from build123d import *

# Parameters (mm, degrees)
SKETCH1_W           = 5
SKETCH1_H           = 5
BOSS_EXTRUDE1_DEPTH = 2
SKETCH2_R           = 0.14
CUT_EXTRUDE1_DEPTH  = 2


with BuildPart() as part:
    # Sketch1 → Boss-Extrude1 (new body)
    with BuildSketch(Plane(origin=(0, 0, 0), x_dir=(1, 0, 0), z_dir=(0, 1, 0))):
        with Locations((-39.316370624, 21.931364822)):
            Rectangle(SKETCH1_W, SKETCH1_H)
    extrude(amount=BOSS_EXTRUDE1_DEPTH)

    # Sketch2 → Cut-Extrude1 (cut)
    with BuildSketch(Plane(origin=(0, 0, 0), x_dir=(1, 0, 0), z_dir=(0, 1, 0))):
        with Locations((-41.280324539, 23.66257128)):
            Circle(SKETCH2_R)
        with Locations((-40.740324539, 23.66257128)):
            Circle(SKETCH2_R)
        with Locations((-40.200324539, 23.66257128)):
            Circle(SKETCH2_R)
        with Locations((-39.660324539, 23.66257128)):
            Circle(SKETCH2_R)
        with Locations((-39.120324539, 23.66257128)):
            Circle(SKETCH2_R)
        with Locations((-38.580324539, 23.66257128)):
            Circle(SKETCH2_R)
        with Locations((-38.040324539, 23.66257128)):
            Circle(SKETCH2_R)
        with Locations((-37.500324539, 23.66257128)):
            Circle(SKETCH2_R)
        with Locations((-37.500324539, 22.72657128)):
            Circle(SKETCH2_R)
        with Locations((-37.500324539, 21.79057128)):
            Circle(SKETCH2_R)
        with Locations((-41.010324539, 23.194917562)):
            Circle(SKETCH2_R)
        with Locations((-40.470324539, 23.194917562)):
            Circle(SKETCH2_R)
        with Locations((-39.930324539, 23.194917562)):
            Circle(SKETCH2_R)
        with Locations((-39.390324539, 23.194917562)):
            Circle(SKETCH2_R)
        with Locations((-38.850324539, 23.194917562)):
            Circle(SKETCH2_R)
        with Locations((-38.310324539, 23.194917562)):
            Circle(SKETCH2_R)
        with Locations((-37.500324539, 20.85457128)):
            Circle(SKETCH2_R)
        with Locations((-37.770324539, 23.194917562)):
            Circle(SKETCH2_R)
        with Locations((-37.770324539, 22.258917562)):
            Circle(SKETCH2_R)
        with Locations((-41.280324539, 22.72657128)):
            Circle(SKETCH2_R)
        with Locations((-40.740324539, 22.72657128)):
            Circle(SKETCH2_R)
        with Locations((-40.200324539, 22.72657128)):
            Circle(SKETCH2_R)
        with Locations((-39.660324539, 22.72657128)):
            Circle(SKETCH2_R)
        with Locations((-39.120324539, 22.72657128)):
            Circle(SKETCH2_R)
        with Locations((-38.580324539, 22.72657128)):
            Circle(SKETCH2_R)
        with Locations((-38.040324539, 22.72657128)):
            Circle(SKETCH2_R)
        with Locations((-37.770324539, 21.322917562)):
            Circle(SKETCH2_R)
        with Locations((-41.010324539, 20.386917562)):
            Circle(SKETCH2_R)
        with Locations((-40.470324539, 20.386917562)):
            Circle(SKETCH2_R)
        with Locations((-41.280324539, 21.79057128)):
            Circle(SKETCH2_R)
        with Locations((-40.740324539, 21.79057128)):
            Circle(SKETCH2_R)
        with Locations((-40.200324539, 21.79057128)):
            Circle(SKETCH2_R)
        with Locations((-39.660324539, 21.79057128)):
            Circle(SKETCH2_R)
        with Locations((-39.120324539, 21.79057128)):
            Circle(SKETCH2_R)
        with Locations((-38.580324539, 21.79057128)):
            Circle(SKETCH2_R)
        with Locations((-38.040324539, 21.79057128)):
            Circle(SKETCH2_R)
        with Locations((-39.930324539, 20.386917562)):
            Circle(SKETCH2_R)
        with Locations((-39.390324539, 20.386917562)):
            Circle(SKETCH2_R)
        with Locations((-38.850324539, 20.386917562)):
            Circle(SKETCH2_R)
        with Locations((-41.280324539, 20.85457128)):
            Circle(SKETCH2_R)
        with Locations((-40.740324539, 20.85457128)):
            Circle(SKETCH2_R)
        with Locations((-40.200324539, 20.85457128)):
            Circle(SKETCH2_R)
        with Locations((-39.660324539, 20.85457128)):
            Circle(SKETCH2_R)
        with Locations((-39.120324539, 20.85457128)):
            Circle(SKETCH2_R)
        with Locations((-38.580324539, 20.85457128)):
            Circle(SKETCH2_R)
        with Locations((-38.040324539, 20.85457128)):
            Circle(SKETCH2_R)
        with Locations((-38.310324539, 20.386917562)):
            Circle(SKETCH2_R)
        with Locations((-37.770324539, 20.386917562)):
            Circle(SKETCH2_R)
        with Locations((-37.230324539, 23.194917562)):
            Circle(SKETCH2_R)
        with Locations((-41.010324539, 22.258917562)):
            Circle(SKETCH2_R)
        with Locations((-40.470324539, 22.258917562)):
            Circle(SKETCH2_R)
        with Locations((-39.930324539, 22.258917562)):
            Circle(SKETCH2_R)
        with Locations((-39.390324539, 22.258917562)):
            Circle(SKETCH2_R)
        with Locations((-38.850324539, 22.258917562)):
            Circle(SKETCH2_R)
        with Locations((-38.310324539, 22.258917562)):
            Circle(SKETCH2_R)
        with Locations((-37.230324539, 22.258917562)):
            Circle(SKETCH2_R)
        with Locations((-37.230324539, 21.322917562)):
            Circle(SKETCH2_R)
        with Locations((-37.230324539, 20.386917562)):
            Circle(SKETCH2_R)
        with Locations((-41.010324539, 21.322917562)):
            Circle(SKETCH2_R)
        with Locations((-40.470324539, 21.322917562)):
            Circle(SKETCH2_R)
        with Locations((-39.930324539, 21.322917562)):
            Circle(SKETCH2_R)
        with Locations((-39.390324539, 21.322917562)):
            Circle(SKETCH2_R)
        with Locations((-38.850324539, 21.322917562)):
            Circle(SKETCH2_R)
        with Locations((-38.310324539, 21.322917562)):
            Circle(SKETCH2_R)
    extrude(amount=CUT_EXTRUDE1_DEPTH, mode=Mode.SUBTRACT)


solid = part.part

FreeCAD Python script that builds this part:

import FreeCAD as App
import Part
import Sketcher

V = App.Vector


def add_polygon(sketch, points):
    """Adds a closed chain of lines whose ends are joined by coincident constraints."""
    first, n = sketch.GeometryCount, len(points)
    for a, b in zip(points, points[1:] + points[:1]):
        sketch.addGeometry(Part.LineSegment(App.Vector(*a, 0), App.Vector(*b, 0)), False)
    for i in range(n):
        sketch.addConstraint(Sketcher.Constraint("Coincident", first + i, 2, first + (i + 1) % n, 1))

doc = App.newDocument("Part")
params = doc.addObject("Spreadsheet::Sheet", "Params")
for row, (alias, value) in enumerate([
    ("sketch1_width", "5 mm"),
    ("pad1_length", "2 mm"),
    ("sketch2_diameter", "0.28 mm"),
    ("pocket1_length", "2 mm"),
], start=1):
    params.set(f"A{row}", alias)
    params.set(f"B{row}", "=" + value)
    params.setAlias(f"B{row}", alias)

body = doc.addObject("PartDesign::Body", "Body")

# Sketch on XZ plane
sketch1 = body.newObject("Sketcher::SketchObject", "Sketch")
sketch1.AttachmentSupport = (doc.getObject("XZ_Plane"), [""])
sketch1.MapMode = "FlatFace"
add_polygon(sketch1, [(-42, -24), (-42, -19), (-37, -19), (-37, -24)])  # lines 0-3
sketch1.addConstraint(Sketcher.Constraint("Vertical", 0))
sketch1.addConstraint(Sketcher.Constraint("Horizontal", 1))
sketch1.addConstraint(Sketcher.Constraint("Vertical", 2))
sketch1.addConstraint(Sketcher.Constraint("Horizontal", 3))
sketch1.addConstraint(Sketcher.Constraint("Equal", 3, 0))
sketch1.addConstraint(Sketcher.Constraint("DistanceX", 1, 1, 1, 2, 5.0))
sketch1.addConstraint(Sketcher.Constraint("DistanceX", 0, 2, -1, 1, 41.816371))
sketch1.addConstraint(Sketcher.Constraint("DistanceY", 0, 2, -1, 1, 19.431365))
sketch1.setExpression("Constraints[9]", "Params.sketch1_width")
pad1 = body.newObject("PartDesign::Pad", "Pad")
pad1.Profile = sketch1
pad1.setExpression("Length", "Params.pad1_length")
pad1.Reversed = True

# Sketch on XZ plane
sketch2 = body.newObject("Sketcher::SketchObject", "Sketch001")
sketch2.AttachmentSupport = (doc.getObject("XZ_Plane"), [""])
sketch2.MapMode = "FlatFace"
sketch2.addGeometry(Part.Circle(V(-41.28, -23.66, 0), V(0, 0, 1), 0.14), False)
sketch2.addGeometry(Part.Circle(V(-40.74, -23.66, 0), V(0, 0, 1), 0.14), False)
sketch2.addGeometry(Part.Circle(V(-40.2, -23.66, 0), V(0, 0, 1), 0.14), False)
sketch2.addGeometry(Part.Circle(V(-39.66, -23.66, 0), V(0, 0, 1), 0.14), False)
sketch2.addGeometry(Part.Circle(V(-39.12, -23.66, 0), V(0, 0, 1), 0.14), False)
sketch2.addGeometry(Part.Circle(V(-38.58, -23.66, 0), V(0, 0, 1), 0.14), False)
sketch2.addGeometry(Part.Circle(V(-38.04, -23.66, 0), V(0, 0, 1), 0.14), False)
sketch2.addGeometry(Part.Circle(V(-37.5, -23.66, 0), V(0, 0, 1), 0.14), False)
sketch2.addGeometry(Part.Circle(V(-37.5, -22.73, 0), V(0, 0, 1), 0.14), False)
sketch2.addGeometry(Part.Circle(V(-37.5, -21.79, 0), V(0, 0, 1), 0.14), False)
sketch2.addGeometry(Part.Circle(V(-41.01, -23.19, 0), V(0, 0, 1), 0.14), False)
sketch2.addGeometry(Part.Circle(V(-40.47, -23.19, 0), V(0, 0, 1), 0.14), False)
sketch2.addGeometry(Part.Circle(V(-39.93, -23.19, 0), V(0, 0, 1), 0.14), False)
sketch2.addGeometry(Part.Circle(V(-39.39, -23.19, 0), V(0, 0, 1), 0.14), False)
sketch2.addGeometry(Part.Circle(V(-38.85, -23.19, 0), V(0, 0, 1), 0.14), False)
sketch2.addGeometry(Part.Circle(V(-38.31, -23.19, 0), V(0, 0, 1), 0.14), False)
sketch2.addGeometry(Part.Circle(V(-37.5, -20.85, 0), V(0, 0, 1), 0.14), False)
sketch2.addGeometry(Part.Circle(V(-37.77, -23.19, 0), V(0, 0, 1), 0.14), False)
sketch2.addGeometry(Part.Circle(V(-37.77, -22.26, 0), V(0, 0, 1), 0.14), False)
sketch2.addGeometry(Part.Circle(V(-41.28, -22.73, 0), V(0, 0, 1), 0.14), False)
sketch2.addGeometry(Part.Circle(V(-40.74, -22.73, 0), V(0, 0, 1), 0.14), False)
sketch2.addGeometry(Part.Circle(V(-40.2, -22.73, 0), V(0, 0, 1), 0.14), False)
sketch2.addGeometry(Part.Circle(V(-39.66, -22.73, 0), V(0, 0, 1), 0.14), False)
sketch2.addGeometry(Part.Circle(V(-39.12, -22.73, 0), V(0, 0, 1), 0.14), False)
sketch2.addGeometry(Part.Circle(V(-38.58, -22.73, 0), V(0, 0, 1), 0.14), False)
sketch2.addGeometry(Part.Circle(V(-38.04, -22.73, 0), V(0, 0, 1), 0.14), False)
sketch2.addGeometry(Part.Circle(V(-37.77, -21.32, 0), V(0, 0, 1), 0.14), False)
sketch2.addGeometry(Part.Circle(V(-41.01, -20.39, 0), V(0, 0, 1), 0.14), False)
sketch2.addGeometry(Part.Circle(V(-40.47, -20.39, 0), V(0, 0, 1), 0.14), False)
sketch2.addGeometry(Part.Circle(V(-41.28, -21.79, 0), V(0, 0, 1), 0.14), False)
sketch2.addGeometry(Part.Circle(V(-40.74, -21.79, 0), V(0, 0, 1), 0.14), False)
sketch2.addGeometry(Part.Circle(V(-40.2, -21.79, 0), V(0, 0, 1), 0.14), False)
sketch2.addGeometry(Part.Circle(V(-39.66, -21.79, 0), V(0, 0, 1), 0.14), False)
sketch2.addGeometry(Part.Circle(V(-39.12, -21.79, 0), V(0, 0, 1), 0.14), False)
sketch2.addGeometry(Part.Circle(V(-38.58, -21.79, 0), V(0, 0, 1), 0.14), False)
sketch2.addGeometry(Part.Circle(V(-38.04, -21.79, 0), V(0, 0, 1), 0.14), False)
sketch2.addGeometry(Part.Circle(V(-39.93, -20.39, 0), V(0, 0, 1), 0.14), False)
sketch2.addGeometry(Part.Circle(V(-39.39, -20.39, 0), V(0, 0, 1), 0.14), False)
sketch2.addGeometry(Part.Circle(V(-38.85, -20.39, 0), V(0, 0, 1), 0.14), False)
sketch2.addGeometry(Part.Circle(V(-41.28, -20.85, 0), V(0, 0, 1), 0.14), False)
sketch2.addGeometry(Part.Circle(V(-40.74, -20.85, 0), V(0, 0, 1), 0.14), False)
sketch2.addGeometry(Part.Circle(V(-40.2, -20.85, 0), V(0, 0, 1), 0.14), False)
sketch2.addGeometry(Part.Circle(V(-39.66, -20.85, 0), V(0, 0, 1), 0.14), False)
sketch2.addGeometry(Part.Circle(V(-39.12, -20.85, 0), V(0, 0, 1), 0.14), False)
sketch2.addGeometry(Part.Circle(V(-38.58, -20.85, 0), V(0, 0, 1), 0.14), False)
sketch2.addGeometry(Part.Circle(V(-38.04, -20.85, 0), V(0, 0, 1), 0.14), False)
sketch2.addGeometry(Part.Circle(V(-38.31, -20.39, 0), V(0, 0, 1), 0.14), False)
sketch2.addGeometry(Part.Circle(V(-37.77, -20.39, 0), V(0, 0, 1), 0.14), False)
sketch2.addGeometry(Part.Circle(V(-37.23, -23.19, 0), V(0, 0, 1), 0.14), False)
sketch2.addGeometry(Part.Circle(V(-41.01, -22.26, 0), V(0, 0, 1), 0.14), False)
sketch2.addGeometry(Part.Circle(V(-40.47, -22.26, 0), V(0, 0, 1), 0.14), False)
sketch2.addGeometry(Part.Circle(V(-39.93, -22.26, 0), V(0, 0, 1), 0.14), False)
sketch2.addGeometry(Part.Circle(V(-39.39, -22.26, 0), V(0, 0, 1), 0.14), False)
sketch2.addGeometry(Part.Circle(V(-38.85, -22.26, 0), V(0, 0, 1), 0.14), False)
sketch2.addGeometry(Part.Circle(V(-38.31, -22.26, 0), V(0, 0, 1), 0.14), False)
sketch2.addGeometry(Part.Circle(V(-37.23, -22.26, 0), V(0, 0, 1), 0.14), False)
sketch2.addGeometry(Part.Circle(V(-37.23, -21.32, 0), V(0, 0, 1), 0.14), False)
sketch2.addGeometry(Part.Circle(V(-37.23, -20.39, 0), V(0, 0, 1), 0.14), False)
sketch2.addGeometry(Part.Circle(V(-41.01, -21.32, 0), V(0, 0, 1), 0.14), False)
sketch2.addGeometry(Part.Circle(V(-40.47, -21.32, 0), V(0, 0, 1), 0.14), False)
sketch2.addGeometry(Part.Circle(V(-39.93, -21.32, 0), V(0, 0, 1), 0.14), False)
sketch2.addGeometry(Part.Circle(V(-39.39, -21.32, 0), V(0, 0, 1), 0.14), False)
sketch2.addGeometry(Part.Circle(V(-38.85, -21.32, 0), V(0, 0, 1), 0.14), False)
sketch2.addGeometry(Part.Circle(V(-38.31, -21.32, 0), V(0, 0, 1), 0.14), False)
sketch2.addConstraint(Sketcher.Constraint("Equal", 0, 1))
sketch2.addConstraint(Sketcher.Constraint("Equal", 1, 2))
sketch2.addConstraint(Sketcher.Constraint("Equal", 2, 3))
sketch2.addConstraint(Sketcher.Constraint("Equal", 3, 4))
sketch2.addConstraint(Sketcher.Constraint("Equal", 4, 5))
sketch2.addConstraint(Sketcher.Constraint("Equal", 5, 6))
sketch2.addConstraint(Sketcher.Constraint("Equal", 6, 7))
sketch2.addConstraint(Sketcher.Constraint("Equal", 7, 8))
sketch2.addConstraint(Sketcher.Constraint("Equal", 8, 9))
sketch2.addConstraint(Sketcher.Constraint("Equal", 9, 10))
sketch2.addConstraint(Sketcher.Constraint("Equal", 10, 11))
sketch2.addConstraint(Sketcher.Constraint("Equal", 11, 12))
sketch2.addConstraint(Sketcher.Constraint("Equal", 12, 13))
sketch2.addConstraint(Sketcher.Constraint("Equal", 13, 14))
sketch2.addConstraint(Sketcher.Constraint("Equal", 14, 15))
sketch2.addConstraint(Sketcher.Constraint("Equal", 15, 16))
sketch2.addConstraint(Sketcher.Constraint("Equal", 16, 17))
sketch2.addConstraint(Sketcher.Constraint("Equal", 17, 18))
sketch2.addConstraint(Sketcher.Constraint("Equal", 18, 19))
sketch2.addConstraint(Sketcher.Constraint("Equal", 19, 20))
sketch2.addConstraint(Sketcher.Constraint("Equal", 20, 21))
sketch2.addConstraint(Sketcher.Constraint("Equal", 21, 22))
sketch2.addConstraint(Sketcher.Constraint("Equal", 22, 23))
sketch2.addConstraint(Sketcher.Constraint("Equal", 23, 24))
sketch2.addConstraint(Sketcher.Constraint("Equal", 24, 25))
sketch2.addConstraint(Sketcher.Constraint("Equal", 25, 26))
sketch2.addConstraint(Sketcher.Constraint("Equal", 26, 27))
sketch2.addConstraint(Sketcher.Constraint("Equal", 27, 28))
sketch2.addConstraint(Sketcher.Constraint("Equal", 28, 29))
sketch2.addConstraint(Sketcher.Constraint("Equal", 29, 30))
sketch2.addConstraint(Sketcher.Constraint("Equal", 30, 31))
sketch2.addConstraint(Sketcher.Constraint("Equal", 31, 32))
sketch2.addConstraint(Sketcher.Constraint("Equal", 32, 33))
sketch2.addConstraint(Sketcher.Constraint("Equal", 33, 34))
sketch2.addConstraint(Sketcher.Constraint("Equal", 34, 35))
sketch2.addConstraint(Sketcher.Constraint("Equal", 35, 36))
sketch2.addConstraint(Sketcher.Constraint("Equal", 36, 37))
sketch2.addConstraint(Sketcher.Constraint("Equal", 37, 38))
sketch2.addConstraint(Sketcher.Constraint("Equal", 38, 39))
sketch2.addConstraint(Sketcher.Constraint("Equal", 39, 40))
sketch2.addConstraint(Sketcher.Constraint("Equal", 40, 41))
sketch2.addConstraint(Sketcher.Constraint("Equal", 41, 42))
sketch2.addConstraint(Sketcher.Constraint("Equal", 42, 43))
sketch2.addConstraint(Sketcher.Constraint("Equal", 43, 44))
sketch2.addConstraint(Sketcher.Constraint("Equal", 44, 45))
sketch2.addConstraint(Sketcher.Constraint("Equal", 45, 46))
sketch2.addConstraint(Sketcher.Constraint("Equal", 46, 47))
sketch2.addConstraint(Sketcher.Constraint("Equal", 47, 48))
sketch2.addConstraint(Sketcher.Constraint("Equal", 48, 49))
sketch2.addConstraint(Sketcher.Constraint("Equal", 49, 50))
sketch2.addConstraint(Sketcher.Constraint("Equal", 50, 51))
sketch2.addConstraint(Sketcher.Constraint("Equal", 51, 52))
sketch2.addConstraint(Sketcher.Constraint("Equal", 52, 53))
sketch2.addConstraint(Sketcher.Constraint("Equal", 53, 54))
sketch2.addConstraint(Sketcher.Constraint("Equal", 54, 55))
sketch2.addConstraint(Sketcher.Constraint("Equal", 55, 56))
sketch2.addConstraint(Sketcher.Constraint("Equal", 56, 57))
sketch2.addConstraint(Sketcher.Constraint("Equal", 57, 58))
sketch2.addConstraint(Sketcher.Constraint("Equal", 58, 59))
sketch2.addConstraint(Sketcher.Constraint("Equal", 59, 60))
sketch2.addConstraint(Sketcher.Constraint("Equal", 60, 61))
sketch2.addConstraint(Sketcher.Constraint("Equal", 61, 62))
sketch2.addConstraint(Sketcher.Constraint("Equal", 62, 63))
sketch2.addConstraint(Sketcher.Constraint("Horizontal", 0, 3, 1, 3))
sketch2.addConstraint(Sketcher.Constraint("Horizontal", 1, 3, 2, 3))
sketch2.addConstraint(Sketcher.Constraint("Horizontal", 2, 3, 3, 3))
sketch2.addConstraint(Sketcher.Constraint("Horizontal", 3, 3, 4, 3))
sketch2.addConstraint(Sketcher.Constraint("Horizontal", 4, 3, 5, 3))
sketch2.addConstraint(Sketcher.Constraint("Horizontal", 5, 3, 6, 3))
sketch2.addConstraint(Sketcher.Constraint("Horizontal", 6, 3, 7, 3))
sketch2.addConstraint(Sketcher.Constraint("Horizontal", 10, 3, 11, 3))
sketch2.addConstraint(Sketcher.Constraint("Horizontal", 11, 3, 12, 3))
sketch2.addConstraint(Sketcher.Constraint("Horizontal", 12, 3, 13, 3))
sketch2.addConstraint(Sketcher.Constraint("Horizontal", 13, 3, 14, 3))
sketch2.addConstraint(Sketcher.Constraint("Horizontal", 14, 3, 15, 3))
sketch2.addConstraint(Sketcher.Constraint("Horizontal", 15, 3, 17, 3))
sketch2.addConstraint(Sketcher.Constraint("Horizontal", 8, 3, 19, 3))
sketch2.addConstraint(Sketcher.Constraint("Horizontal", 19, 3, 20, 3))
sketch2.addConstraint(Sketcher.Constraint("Horizontal", 20, 3, 21, 3))
sketch2.addConstraint(Sketcher.Constraint("Horizontal", 21, 3, 22, 3))
sketch2.addConstraint(Sketcher.Constraint("Horizontal", 22, 3, 23, 3))
sketch2.addConstraint(Sketcher.Constraint("Horizontal", 23, 3, 24, 3))
sketch2.addConstraint(Sketcher.Constraint("Horizontal", 24, 3, 25, 3))
sketch2.addConstraint(Sketcher.Constraint("Horizontal", 27, 3, 28, 3))
sketch2.addConstraint(Sketcher.Constraint("Horizontal", 9, 3, 29, 3))
sketch2.addConstraint(Sketcher.Constraint("Horizontal", 29, 3, 30, 3))
sketch2.addConstraint(Sketcher.Constraint("Horizontal", 30, 3, 31, 3))
sketch2.addConstraint(Sketcher.Constraint("Horizontal", 31, 3, 32, 3))
sketch2.addConstraint(Sketcher.Constraint("Horizontal", 32, 3, 33, 3))
sketch2.addConstraint(Sketcher.Constraint("Horizontal", 33, 3, 34, 3))
sketch2.addConstraint(Sketcher.Constraint("Horizontal", 34, 3, 35, 3))
sketch2.addConstraint(Sketcher.Constraint("Horizontal", 28, 3, 36, 3))
sketch2.addConstraint(Sketcher.Constraint("Horizontal", 36, 3, 37, 3))
sketch2.addConstraint(Sketcher.Constraint("Horizontal", 37, 3, 38, 3))
sketch2.addConstraint(Sketcher.Constraint("Horizontal", 16, 3, 39, 3))
sketch2.addConstraint(Sketcher.Constraint("Horizontal", 39, 3, 40, 3))
sketch2.addConstraint(Sketcher.Constraint("Horizontal", 40, 3, 41, 3))
sketch2.addConstraint(Sketcher.Constraint("Horizontal", 41, 3, 42, 3))
sketch2.addConstraint(Sketcher.Constraint("Horizontal", 42, 3, 43, 3))
sketch2.addConstraint(Sketcher.Constraint("Horizontal", 43, 3, 44, 3))
sketch2.addConstraint(Sketcher.Constraint("Horizontal", 44, 3, 45, 3))
sketch2.addConstraint(Sketcher.Constraint("Horizontal", 38, 3, 46, 3))
sketch2.addConstraint(Sketcher.Constraint("Horizontal", 46, 3, 47, 3))
sketch2.addConstraint(Sketcher.Constraint("Horizontal", 17, 3, 48, 3))
sketch2.addConstraint(Sketcher.Constraint("Horizontal", 18, 3, 49, 3))
sketch2.addConstraint(Sketcher.Constraint("Horizontal", 49, 3, 50, 3))
sketch2.addConstraint(Sketcher.Constraint("Horizontal", 50, 3, 51, 3))
sketch2.addConstraint(Sketcher.Constraint("Horizontal", 51, 3, 52, 3))
sketch2.addConstraint(Sketcher.Constraint("Horizontal", 52, 3, 53, 3))
sketch2.addConstraint(Sketcher.Constraint("Horizontal", 53, 3, 54, 3))
sketch2.addConstraint(Sketcher.Constraint("Horizontal", 54, 3, 55, 3))
sketch2.addConstraint(Sketcher.Constraint("Horizontal", 26, 3, 56, 3))
sketch2.addConstraint(Sketcher.Constraint("Horizontal", 47, 3, 57, 3))
sketch2.addConstraint(Sketcher.Constraint("Horizontal", 56, 3, 58, 3))
sketch2.addConstraint(Sketcher.Constraint("Horizontal", 58, 3, 59, 3))
sketch2.addConstraint(Sketcher.Constraint("Horizontal", 59, 3, 60, 3))
sketch2.addConstraint(Sketcher.Constraint("Horizontal", 60, 3, 61, 3))
sketch2.addConstraint(Sketcher.Constraint("Horizontal", 61, 3, 62, 3))
sketch2.addConstraint(Sketcher.Constraint("Horizontal", 62, 3, 63, 3))
sketch2.addConstraint(Sketcher.Constraint("Vertical", 7, 3, 8, 3))
sketch2.addConstraint(Sketcher.Constraint("Vertical", 8, 3, 9, 3))
sketch2.addConstraint(Sketcher.Constraint("Vertical", 9, 3, 16, 3))
sketch2.addConstraint(Sketcher.Constraint("Vertical", 17, 3, 18, 3))
sketch2.addConstraint(Sketcher.Constraint("Vertical", 0, 3, 19, 3))
sketch2.addConstraint(Sketcher.Constraint("Vertical", 1, 3, 20, 3))
sketch2.addConstraint(Sketcher.Constraint("Vertical", 2, 3, 21, 3))
sketch2.addConstraint(Sketcher.Constraint("Vertical", 3, 3, 22, 3))
sketch2.addConstraint(Sketcher.Constraint("Vertical", 4, 3, 23, 3))
sketch2.addConstraint(Sketcher.Constraint("Vertical", 5, 3, 24, 3))
sketch2.addConstraint(Sketcher.Constraint("Vertical", 6, 3, 25, 3))
sketch2.addConstraint(Sketcher.Constraint("Vertical", 18, 3, 26, 3))
sketch2.addConstraint(Sketcher.Constraint("Vertical", 10, 3, 27, 3))
sketch2.addConstraint(Sketcher.Constraint("Vertical", 11, 3, 28, 3))
sketch2.addConstraint(Sketcher.Constraint("Vertical", 19, 3, 29, 3))
sketch2.addConstraint(Sketcher.Constraint("Vertical", 20, 3, 30, 3))
sketch2.addConstraint(Sketcher.Constraint("Vertical", 21, 3, 31, 3))
sketch2.addConstraint(Sketcher.Constraint("Vertical", 22, 3, 32, 3))
sketch2.addConstraint(Sketcher.Constraint("Vertical", 23, 3, 33, 3))
sketch2.addConstraint(Sketcher.Constraint("Vertical", 24, 3, 34, 3))
sketch2.addConstraint(Sketcher.Constraint("Vertical", 25, 3, 35, 3))
sketch2.addConstraint(Sketcher.Constraint("Vertical", 12, 3, 36, 3))
sketch2.addConstraint(Sketcher.Constraint("Vertical", 13, 3, 37, 3))
sketch2.addConstraint(Sketcher.Constraint("Vertical", 14, 3, 38, 3))
sketch2.addConstraint(Sketcher.Constraint("Vertical", 29, 3, 39, 3))
sketch2.addConstraint(Sketcher.Constraint("Vertical", 30, 3, 40, 3))
sketch2.addConstraint(Sketcher.Constraint("Vertical", 31, 3, 41, 3))
sketch2.addConstraint(Sketcher.Constraint("Vertical", 32, 3, 42, 3))
sketch2.addConstraint(Sketcher.Constraint("Vertical", 33, 3, 43, 3))
sketch2.addConstraint(Sketcher.Constraint("Vertical", 34, 3, 44, 3))
sketch2.addConstraint(Sketcher.Constraint("Vertical", 35, 3, 45, 3))
sketch2.addConstraint(Sketcher.Constraint("Vertical", 15, 3, 46, 3))
sketch2.addConstraint(Sketcher.Constraint("Vertical", 26, 3, 47, 3))
sketch2.addConstraint(Sketcher.Constraint("Vertical", 27, 3, 49, 3))
sketch2.addConstraint(Sketcher.Constraint("Vertical", 28, 3, 50, 3))
sketch2.addConstraint(Sketcher.Constraint("Vertical", 36, 3, 51, 3))
sketch2.addConstraint(Sketcher.Constraint("Vertical", 37, 3, 52, 3))
sketch2.addConstraint(Sketcher.Constraint("Vertical", 38, 3, 53, 3))
sketch2.addConstraint(Sketcher.Constraint("Vertical", 46, 3, 54, 3))
sketch2.addConstraint(Sketcher.Constraint("Vertical", 48, 3, 55, 3))
sketch2.addConstraint(Sketcher.Constraint("Vertical", 55, 3, 56, 3))
sketch2.addConstraint(Sketcher.Constraint("Vertical", 56, 3, 57, 3))
sketch2.addConstraint(Sketcher.Constraint("Vertical", 49, 3, 58, 3))
sketch2.addConstraint(Sketcher.Constraint("Vertical", 50, 3, 59, 3))
sketch2.addConstraint(Sketcher.Constraint("Vertical", 51, 3, 60, 3))
sketch2.addConstraint(Sketcher.Constraint("Vertical", 52, 3, 61, 3))
sketch2.addConstraint(Sketcher.Constraint("Vertical", 53, 3, 62, 3))
sketch2.addConstraint(Sketcher.Constraint("Vertical", 54, 3, 63, 3))
sketch2.addConstraint(Sketcher.Constraint("Diameter", 0, 0.28))
sketch2.addConstraint(Sketcher.Constraint("DistanceY", 0, 3, -1, 1, 23.662571))
sketch2.addConstraint(Sketcher.Constraint("DistanceY", 8, 3, -1, 1, 22.726571))
sketch2.addConstraint(Sketcher.Constraint("DistanceY", 9, 3, -1, 1, 21.790571))
sketch2.addConstraint(Sketcher.Constraint("DistanceY", 16, 3, -1, 1, 20.854571))
sketch2.addConstraint(Sketcher.Constraint("DistanceX", 0, 3, -1, 1, 41.280325))
sketch2.addConstraint(Sketcher.Constraint("DistanceX", 1, 3, -1, 1, 40.740325))
sketch2.addConstraint(Sketcher.Constraint("DistanceX", 2, 3, -1, 1, 40.200325))
sketch2.addConstraint(Sketcher.Constraint("DistanceX", 3, 3, -1, 1, 39.660325))
sketch2.addConstraint(Sketcher.Constraint("DistanceX", 4, 3, -1, 1, 39.120325))
sketch2.addConstraint(Sketcher.Constraint("DistanceX", 5, 3, -1, 1, 38.580325))
sketch2.addConstraint(Sketcher.Constraint("DistanceX", 6, 3, -1, 1, 38.040325))
sketch2.addConstraint(Sketcher.Constraint("DistanceX", 7, 3, -1, 1, 37.500325))
sketch2.addConstraint(Sketcher.Constraint("DistanceX", 10, 3, -1, 1, 41.010325))
sketch2.addConstraint(Sketcher.Constraint("DistanceY", 10, 3, -1, 1, 23.194918))
sketch2.addConstraint(Sketcher.Constraint("DistanceX", 11, 3, -1, 1, 40.470325))
sketch2.addConstraint(Sketcher.Constraint("DistanceX", 12, 3, -1, 1, 39.930325))
sketch2.addConstraint(Sketcher.Constraint("DistanceX", 13, 3, -1, 1, 39.390325))
sketch2.addConstraint(Sketcher.Constraint("DistanceX", 14, 3, -1, 1, 38.850325))
sketch2.addConstraint(Sketcher.Constraint("DistanceX", 15, 3, -1, 1, 38.310325))
sketch2.addConstraint(Sketcher.Constraint("DistanceX", 17, 3, -1, 1, 37.770325))
sketch2.addConstraint(Sketcher.Constraint("DistanceY", 18, 3, -1, 1, 22.258918))
sketch2.addConstraint(Sketcher.Constraint("DistanceY", 26, 3, -1, 1, 21.322918))
sketch2.addConstraint(Sketcher.Constraint("DistanceY", 27, 3, -1, 1, 20.386918))
sketch2.addConstraint(Sketcher.Constraint("DistanceX", 48, 3, -1, 1, 37.230325))
sketch2.setExpression("Constraints[167]", "Params.sketch2_diameter")
pocket1 = body.newObject("PartDesign::Pocket", "Pocket")
pocket1.Profile = sketch2
pocket1.setExpression("Length", "Params.pocket1_length")

doc.recompute()
